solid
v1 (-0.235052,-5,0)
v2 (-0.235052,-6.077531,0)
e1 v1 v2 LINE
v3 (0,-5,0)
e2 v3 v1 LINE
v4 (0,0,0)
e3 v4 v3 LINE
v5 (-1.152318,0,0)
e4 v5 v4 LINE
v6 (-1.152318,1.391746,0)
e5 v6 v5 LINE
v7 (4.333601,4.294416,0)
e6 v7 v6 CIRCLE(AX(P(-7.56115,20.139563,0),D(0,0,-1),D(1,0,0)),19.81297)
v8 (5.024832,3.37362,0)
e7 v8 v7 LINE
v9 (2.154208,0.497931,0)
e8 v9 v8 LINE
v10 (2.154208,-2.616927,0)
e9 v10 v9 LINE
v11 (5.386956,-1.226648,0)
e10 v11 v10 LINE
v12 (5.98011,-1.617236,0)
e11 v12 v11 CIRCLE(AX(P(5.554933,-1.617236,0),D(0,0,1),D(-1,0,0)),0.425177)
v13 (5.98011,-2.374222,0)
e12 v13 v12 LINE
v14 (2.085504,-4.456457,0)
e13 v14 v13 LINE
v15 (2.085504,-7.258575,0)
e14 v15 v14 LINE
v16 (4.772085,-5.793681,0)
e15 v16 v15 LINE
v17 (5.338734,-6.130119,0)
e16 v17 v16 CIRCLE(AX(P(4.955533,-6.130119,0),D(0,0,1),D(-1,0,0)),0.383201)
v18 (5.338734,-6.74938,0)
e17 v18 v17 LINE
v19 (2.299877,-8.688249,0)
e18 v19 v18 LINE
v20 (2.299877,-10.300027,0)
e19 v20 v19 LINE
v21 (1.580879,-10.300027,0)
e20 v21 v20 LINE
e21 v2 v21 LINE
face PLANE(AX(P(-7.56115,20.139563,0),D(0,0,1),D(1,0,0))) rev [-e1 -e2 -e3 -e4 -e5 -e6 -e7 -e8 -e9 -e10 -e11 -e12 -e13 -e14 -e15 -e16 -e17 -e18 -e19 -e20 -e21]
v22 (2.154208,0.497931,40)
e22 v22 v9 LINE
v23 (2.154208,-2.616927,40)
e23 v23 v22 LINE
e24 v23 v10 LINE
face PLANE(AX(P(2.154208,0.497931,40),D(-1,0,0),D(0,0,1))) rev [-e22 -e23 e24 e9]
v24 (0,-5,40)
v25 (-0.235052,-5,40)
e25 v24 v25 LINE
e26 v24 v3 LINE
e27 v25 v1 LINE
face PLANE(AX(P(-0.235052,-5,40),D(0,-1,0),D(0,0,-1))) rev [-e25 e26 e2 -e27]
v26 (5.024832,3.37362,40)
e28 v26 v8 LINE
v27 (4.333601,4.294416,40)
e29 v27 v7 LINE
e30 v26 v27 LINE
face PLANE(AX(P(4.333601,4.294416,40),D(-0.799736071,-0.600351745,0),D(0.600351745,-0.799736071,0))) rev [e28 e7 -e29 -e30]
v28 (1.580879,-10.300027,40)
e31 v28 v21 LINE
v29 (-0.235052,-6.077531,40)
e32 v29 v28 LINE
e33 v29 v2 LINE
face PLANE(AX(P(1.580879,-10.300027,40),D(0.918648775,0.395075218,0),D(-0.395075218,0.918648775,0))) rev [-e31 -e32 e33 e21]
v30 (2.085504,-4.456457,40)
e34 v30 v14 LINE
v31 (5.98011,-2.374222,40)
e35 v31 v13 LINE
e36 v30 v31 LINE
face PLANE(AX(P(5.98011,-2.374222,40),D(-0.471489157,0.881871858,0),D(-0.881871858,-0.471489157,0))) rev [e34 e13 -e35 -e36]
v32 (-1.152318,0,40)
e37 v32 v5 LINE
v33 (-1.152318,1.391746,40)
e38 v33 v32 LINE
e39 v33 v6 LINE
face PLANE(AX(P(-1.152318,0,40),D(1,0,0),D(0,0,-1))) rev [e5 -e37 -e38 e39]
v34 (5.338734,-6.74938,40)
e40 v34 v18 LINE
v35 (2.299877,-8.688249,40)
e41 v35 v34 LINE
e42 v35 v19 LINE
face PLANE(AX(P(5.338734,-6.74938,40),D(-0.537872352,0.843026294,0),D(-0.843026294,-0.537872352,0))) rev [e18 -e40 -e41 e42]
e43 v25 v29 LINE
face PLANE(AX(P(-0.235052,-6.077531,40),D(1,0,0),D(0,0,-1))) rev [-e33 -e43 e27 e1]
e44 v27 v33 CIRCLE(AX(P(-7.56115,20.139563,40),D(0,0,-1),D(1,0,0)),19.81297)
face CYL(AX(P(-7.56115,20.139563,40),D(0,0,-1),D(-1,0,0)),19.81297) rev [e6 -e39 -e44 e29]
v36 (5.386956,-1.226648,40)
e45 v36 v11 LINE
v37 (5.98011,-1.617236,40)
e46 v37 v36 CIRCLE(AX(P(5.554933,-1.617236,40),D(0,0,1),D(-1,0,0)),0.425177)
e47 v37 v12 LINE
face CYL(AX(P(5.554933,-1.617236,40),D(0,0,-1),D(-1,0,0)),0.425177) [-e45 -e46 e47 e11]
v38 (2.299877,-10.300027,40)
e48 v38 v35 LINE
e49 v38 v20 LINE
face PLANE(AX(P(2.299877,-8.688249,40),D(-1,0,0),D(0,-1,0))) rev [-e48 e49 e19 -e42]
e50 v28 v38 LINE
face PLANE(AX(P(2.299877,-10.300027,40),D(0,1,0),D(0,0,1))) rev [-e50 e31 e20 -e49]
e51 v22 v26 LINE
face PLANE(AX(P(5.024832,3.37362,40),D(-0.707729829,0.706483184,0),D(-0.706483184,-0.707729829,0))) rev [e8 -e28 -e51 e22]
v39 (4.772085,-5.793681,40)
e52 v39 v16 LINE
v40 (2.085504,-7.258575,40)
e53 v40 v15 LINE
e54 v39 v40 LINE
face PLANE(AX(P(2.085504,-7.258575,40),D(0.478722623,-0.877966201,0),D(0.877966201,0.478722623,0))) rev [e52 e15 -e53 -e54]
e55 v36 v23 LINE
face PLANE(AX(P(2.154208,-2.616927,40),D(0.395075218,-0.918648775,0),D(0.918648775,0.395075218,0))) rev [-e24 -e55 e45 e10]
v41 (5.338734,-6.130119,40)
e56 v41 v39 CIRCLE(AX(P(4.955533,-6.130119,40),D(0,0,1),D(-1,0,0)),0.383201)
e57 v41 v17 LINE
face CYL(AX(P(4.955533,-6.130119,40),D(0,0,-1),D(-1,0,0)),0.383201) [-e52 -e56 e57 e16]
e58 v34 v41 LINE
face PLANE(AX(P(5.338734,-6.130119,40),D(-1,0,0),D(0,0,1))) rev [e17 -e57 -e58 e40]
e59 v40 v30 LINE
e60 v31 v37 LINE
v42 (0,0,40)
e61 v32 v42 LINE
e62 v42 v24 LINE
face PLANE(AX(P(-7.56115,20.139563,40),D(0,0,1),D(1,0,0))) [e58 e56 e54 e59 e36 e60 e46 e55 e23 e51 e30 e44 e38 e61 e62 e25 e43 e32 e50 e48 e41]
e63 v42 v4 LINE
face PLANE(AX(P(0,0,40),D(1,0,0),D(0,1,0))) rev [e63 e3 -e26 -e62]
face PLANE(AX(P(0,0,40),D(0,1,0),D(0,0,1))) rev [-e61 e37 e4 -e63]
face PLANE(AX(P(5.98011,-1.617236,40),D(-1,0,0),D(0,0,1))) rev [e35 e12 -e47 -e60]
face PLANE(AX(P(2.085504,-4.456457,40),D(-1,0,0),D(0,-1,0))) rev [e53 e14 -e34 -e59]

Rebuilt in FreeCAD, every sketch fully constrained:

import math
import FreeCAD as App
import Part
import Sketcher
from FreeCAD import Vector

doc = App.newDocument("Part")
body = doc.addObject("PartDesign::Body", "Body")

# Sketch on XY plane
sketch1 = doc.addObject("Sketcher::SketchObject", "Sketch")
body.addObject(sketch1)
sketch1.AttachmentSupport = (doc.XY_Plane, [""])
sketch1.MapMode = "FlatFace"
sketch1.addGeometry(Part.LineSegment(Vector(0, 0, 0), Vector(0, -5, 0)), False)
sketch1.addGeometry(Part.LineSegment(Vector(0, -5, 0), Vector(-0.235052, -5, 0)), False)
sketch1.addGeometry(Part.LineSegment(Vector(-0.235052, -5, 0), Vector(-0.235052, -6.077531, 0)), False)
sketch1.addGeometry(Part.LineSegment(Vector(-0.235052, -6.077531, 0), Vector(1.580879, -10.300027, 0)), False)
sketch1.addGeometry(Part.LineSegment(Vector(1.580879, -10.300027, 0), Vector(2.299877, -10.300027, 0)), False)
sketch1.addGeometry(Part.LineSegment(Vector(2.299877, -10.300027, 0), Vector(2.299877, -8.688249, 0)), False)
sketch1.addGeometry(Part.LineSegment(Vector(2.299877, -8.688249, 0), Vector(5.338734, -6.74938, 0)), False)
sketch1.addGeometry(Part.LineSegment(Vector(5.338734, -6.74938, 0), Vector(5.338734, -6.130119, 0)), False)
sketch1.addGeometry(Part.ArcOfCircle(Part.Circle(Vector(4.955533, -6.130119, 0), Vector(0, 0, 1), 0.383201), math.radians(0), math.radians(118.602008)), False)
sketch1.addGeometry(Part.LineSegment(Vector(4.772085, -5.793681, 0), Vector(2.085504, -7.258575, 0)), False)
sketch1.addGeometry(Part.LineSegment(Vector(2.085504, -7.258575, 0), Vector(2.085504, -4.456457, 0)), False)
sketch1.addGeometry(Part.LineSegment(Vector(2.085504, -4.456457, 0), Vector(5.98011, -2.374222, 0)), False)
sketch1.addGeometry(Part.LineSegment(Vector(5.98011, -2.374222, 0), Vector(5.98011, -1.617236, 0)), False)
sketch1.addGeometry(Part.ArcOfCircle(Part.Circle(Vector(5.554933, -1.617236, 0), Vector(0, 0, 1), 0.425177), math.radians(0), math.radians(113.270665)), False)
sketch1.addGeometry(Part.LineSegment(Vector(5.386956, -1.226648, 0), Vector(2.154208, -2.616927, 0)), False)
sketch1.addGeometry(Part.LineSegment(Vector(2.154208, -2.616927, 0), Vector(2.154208, 0.497931, 0)), False)
sketch1.addGeometry(Part.LineSegment(Vector(2.154208, 0.497931, 0), Vector(5.024832, 3.37362, 0)), False)
sketch1.addGeometry(Part.LineSegment(Vector(5.024832, 3.37362, 0), Vector(4.333601, 4.294416, 0)), False)
sketch1.addGeometry(Part.ArcOfCircle(Part.Circle(Vector(-7.56115, 20.139563, 0), Vector(0, 0, 1), 19.81297), math.radians(-71.127307), math.radians(-53.104906)), False)
sketch1.addGeometry(Part.LineSegment(Vector(-1.152318, 1.391746, 0), Vector(-1.152318, 0, 0)), False)
sketch1.addGeometry(Part.LineSegment(Vector(-1.152318, 0, 0), Vector(0, 0, 0)), False)
sketch1.addConstraint(Sketcher.Constraint("Coincident", 0, 2, 1, 1))
sketch1.addConstraint(Sketcher.Constraint("Coincident", 1, 2, 2, 1))
sketch1.addConstraint(Sketcher.Constraint("Coincident", 2, 2, 3, 1))
sketch1.addConstraint(Sketcher.Constraint("Coincident", 3, 2, 4, 1))
sketch1.addConstraint(Sketcher.Constraint("Coincident", 4, 2, 5, 1))
sketch1.addConstraint(Sketcher.Constraint("Coincident", 5, 2, 6, 1))
sketch1.addConstraint(Sketcher.Constraint("Coincident", 6, 2, 7, 1))
sketch1.addConstraint(Sketcher.Constraint("Tangent", 7, 2, 8, 1))
sketch1.addConstraint(Sketcher.Constraint("Tangent", 8, 2, 9, 1))
sketch1.addConstraint(Sketcher.Constraint("Coincident", 9, 2, 10, 1))
sketch1.addConstraint(Sketcher.Constraint("Coincident", 10, 2, 11, 1))
sketch1.addConstraint(Sketcher.Constraint("Coincident", 11, 2, 12, 1))
sketch1.addConstraint(Sketcher.Constraint("Tangent", 12, 2, 13, 1))
sketch1.addConstraint(Sketcher.Constraint("Tangent", 13, 2, 14, 1))
sketch1.addConstraint(Sketcher.Constraint("Coincident", 14, 2, 15, 1))
sketch1.addConstraint(Sketcher.Constraint("Coincident", 15, 2, 16, 1))
sketch1.addConstraint(Sketcher.Constraint("Coincident", 16, 2, 17, 1))
sketch1.addConstraint(Sketcher.Constraint("Coincident", 17, 2, 18, 2))
sketch1.addConstraint(Sketcher.Constraint("Coincident", 18, 1, 19, 1))
sketch1.addConstraint(Sketcher.Constraint("Coincident", 19, 2, 20, 1))
sketch1.addConstraint(Sketcher.Constraint("Coincident", 20, 2, 0, 1))
sketch1.addConstraint(Sketcher.Constraint("Vertical", 0))
sketch1.addConstraint(Sketcher.Constraint("Horizontal", 1))
sketch1.addConstraint(Sketcher.Constraint("Vertical", 2))
sketch1.addConstraint(Sketcher.Constraint("Horizontal", 4))
sketch1.addConstraint(Sketcher.Constraint("Vertical", 5))
sketch1.addConstraint(Sketcher.Constraint("Vertical", 7))
sketch1.addConstraint(Sketcher.Constraint("Vertical", 10))
sketch1.addConstraint(Sketcher.Constraint("Vertical", 12))
sketch1.addConstraint(Sketcher.Constraint("Vertical", 15))
sketch1.addConstraint(Sketcher.Constraint("Vertical", 19))
sketch1.addConstraint(Sketcher.Constraint("Horizontal", 20))
sketch1.addConstraint(Sketcher.Constraint("Coincident", 20, 2, -1, 1))
sketch1.addConstraint(Sketcher.Constraint("Perpendicular", 3, 14))
sketch1.addConstraint(Sketcher.Constraint("DistanceY", 0, 2, 0, 1, 5.0))
sketch1.addConstraint(Sketcher.Constraint("Radius", 8, 0.383201))
sketch1.addConstraint(Sketcher.Constraint("Radius", 18, 19.81297))
sketch1.addConstraint(Sketcher.Constraint("Radius", 13, 0.425177))
sketch1.addConstraint(Sketcher.Constraint("Distance", 6, 3.6047))
sketch1.addConstraint(Sketcher.Constraint("DistanceY", 2, 2, 2, 1, 1.077531))
sketch1.addConstraint(Sketcher.Constraint("DistanceY", 7, 1, 7, 2, 0.619262))
sketch1.addConstraint(Sketcher.Constraint("DistanceY", 10, 1, 10, 2, 2.802118))
sketch1.addConstraint(Sketcher.Constraint("DistanceY", 15, 1, 15, 2, 3.114858))
sketch1.addConstraint(Sketcher.Constraint("DistanceX", -1, 1, 17, 2, 4.333601))
sketch1.addConstraint(Sketcher.Constraint("DistanceX", 8, 3, 13, 3, 0.5994))
sketch1.addConstraint(Sketcher.Constraint("DistanceY", 13, 3, 18, 3, 21.756799))
sketch1.addConstraint(Sketcher.Constraint("DistanceY", 6, 2, 8, 2, 0.955699))
sketch1.addConstraint(Sketcher.Constraint("DistanceX", 15, 2, 12, 2, 3.825902))
sketch1.addConstraint(Sketcher.Constraint("DistanceX", 16, 2, 13, 3, 0.530101))
sketch1.addConstraint(Sketcher.Constraint("Distance", 3, 4.596421))
sketch1.addConstraint(Sketcher.Constraint("Distance", 16, 4.063258))
sketch1.addConstraint(Sketcher.Constraint("DistanceX", 1, 2, 1, 1, 0.235052))
sketch1.addConstraint(Sketcher.Constraint("DistanceX", 4, 1, 4, 2, 0.718997))
sketch1.addConstraint(Sketcher.Constraint("DistanceX", 20, 1, 20, 2, 1.152318))
sketch1.addConstraint(Sketcher.Constraint("DistanceY", 5, 1, 5, 2, 1.611778))
sketch1.addConstraint(Sketcher.Constraint("DistanceY", 12, 1, 12, 2, 0.756985))
sketch1.addConstraint(Sketcher.Constraint("DistanceY", 19, 2, 19, 1, 1.391746))
sketch1.addConstraint(Sketcher.Constraint("DistanceY", 8, 3, -1, 1, 6.130119))
sketch1.addConstraint(Sketcher.Constraint("DistanceX", 18, 3, -1, 1, 7.56115))
sketch1.addConstraint(Sketcher.Constraint("DistanceX", -1, 1, 3, 2, 1.580879))
sketch1.addConstraint(Sketcher.Constraint("DistanceX", 9, 2, 8, 2, 2.686581))
pad1 = doc.addObject("PartDesign::Pad", "Pad")
body.addObject(pad1)
pad1.Profile = sketch1
pad1.Length = 40

doc.recompute()
